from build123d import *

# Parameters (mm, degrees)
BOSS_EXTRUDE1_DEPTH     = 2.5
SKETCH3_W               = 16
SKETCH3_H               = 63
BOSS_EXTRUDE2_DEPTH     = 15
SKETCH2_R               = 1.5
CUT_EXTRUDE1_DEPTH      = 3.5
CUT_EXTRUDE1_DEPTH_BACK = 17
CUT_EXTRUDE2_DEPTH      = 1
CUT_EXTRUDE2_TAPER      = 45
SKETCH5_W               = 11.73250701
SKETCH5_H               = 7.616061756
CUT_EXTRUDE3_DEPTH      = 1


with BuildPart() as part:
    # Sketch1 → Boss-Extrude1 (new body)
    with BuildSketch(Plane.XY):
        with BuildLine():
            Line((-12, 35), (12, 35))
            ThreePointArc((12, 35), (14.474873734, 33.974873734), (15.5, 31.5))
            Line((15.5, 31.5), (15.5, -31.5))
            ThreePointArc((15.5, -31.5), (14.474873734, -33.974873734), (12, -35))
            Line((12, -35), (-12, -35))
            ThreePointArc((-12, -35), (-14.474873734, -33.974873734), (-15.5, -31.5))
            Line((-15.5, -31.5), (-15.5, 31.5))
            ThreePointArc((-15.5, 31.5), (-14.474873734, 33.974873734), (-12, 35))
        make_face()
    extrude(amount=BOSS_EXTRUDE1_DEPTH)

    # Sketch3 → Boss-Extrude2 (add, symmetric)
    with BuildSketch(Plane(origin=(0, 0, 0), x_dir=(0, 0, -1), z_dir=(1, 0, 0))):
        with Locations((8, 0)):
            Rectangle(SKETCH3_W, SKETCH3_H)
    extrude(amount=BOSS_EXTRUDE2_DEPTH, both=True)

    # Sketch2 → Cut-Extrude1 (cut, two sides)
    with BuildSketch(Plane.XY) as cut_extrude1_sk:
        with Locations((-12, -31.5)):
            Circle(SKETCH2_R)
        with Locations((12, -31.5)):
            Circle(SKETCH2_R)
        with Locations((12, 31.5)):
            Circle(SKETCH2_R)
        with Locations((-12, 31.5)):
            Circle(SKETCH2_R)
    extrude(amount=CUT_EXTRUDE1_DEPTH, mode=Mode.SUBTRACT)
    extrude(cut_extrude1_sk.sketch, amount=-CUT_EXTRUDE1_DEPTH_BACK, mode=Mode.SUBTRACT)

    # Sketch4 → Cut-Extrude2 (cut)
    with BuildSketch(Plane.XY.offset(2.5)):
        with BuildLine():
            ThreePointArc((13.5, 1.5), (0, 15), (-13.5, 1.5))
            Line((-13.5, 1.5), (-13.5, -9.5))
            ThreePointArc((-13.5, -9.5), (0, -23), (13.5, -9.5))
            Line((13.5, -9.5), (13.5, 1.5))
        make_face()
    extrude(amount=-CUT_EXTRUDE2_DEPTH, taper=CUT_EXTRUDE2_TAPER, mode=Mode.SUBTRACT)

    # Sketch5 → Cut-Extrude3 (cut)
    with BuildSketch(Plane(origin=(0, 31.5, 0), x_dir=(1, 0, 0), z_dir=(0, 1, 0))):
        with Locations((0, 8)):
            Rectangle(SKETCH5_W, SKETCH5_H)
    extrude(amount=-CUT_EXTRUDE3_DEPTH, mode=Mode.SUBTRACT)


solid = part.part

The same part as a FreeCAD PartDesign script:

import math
import FreeCAD as App
import Part
import Sketcher


def add_polygon(sketch, points):
    """Adds a closed chain of lines whose ends are joined by coincident constraints."""
    first, n = sketch.GeometryCount, len(points)
    for a, b in zip(points, points[1:] + points[:1]):
        sketch.addGeometry(Part.LineSegment(App.Vector(*a, 0), App.Vector(*b, 0)), False)
    for i in range(n):
        sketch.addConstraint(Sketcher.Constraint("Coincident", first + i, 2, first + (i + 1) % n, 1))

doc = App.newDocument("Part")
params = doc.addObject("Spreadsheet::Sheet", "Params")
for row, (alias, value) in enumerate([
    ("sketch1_radius", "3.5 mm"),
    ("sketch1_width", "24 mm"),
    ("sketch1_height", "63 mm"),
    ("pad1_length", "2.5 mm"),
    ("sketch2_width", "63 mm"),
    ("sketch2_height", "16 mm"),
    ("pad2_length", "30 mm"),
    ("sketch3_diameter", "3 mm"),
    ("sketch4_radius", "13.5 mm"),
    ("sketch4_height", "11 mm"),
    ("pocket2_length", "1 mm"),
    ("pocket2_taper", "-45 deg"),
    ("pocket3_length", "1 mm"),
], start=1):
    params.set(f"A{row}", alias)
    params.set(f"B{row}", "=" + value)
    params.setAlias(f"B{row}", alias)

body = doc.addObject("PartDesign::Body", "Body")

sketch1 = body.newObject("Sketcher::SketchObject", "Sketch")
sketch1.AttachmentSupport = (doc.getObject("XY_Plane"), [""])
sketch1.MapMode = "FlatFace"
sketch1.addGeometry([
    Part.LineSegment(App.Vector(12, 35, 0), App.Vector(-12, 35, 0)),
    Part.ArcOfCircle(Part.Circle(App.Vector(-12, 31.5, 0), App.Vector(0, 0, 1), 3.5), math.radians(90), math.radians(180)),
    Part.LineSegment(App.Vector(-15.5, 31.5, 0), App.Vector(-15.5, -31.5, 0)),
    Part.ArcOfCircle(Part.Circle(App.Vector(-12, -31.5, 0), App.Vector(0, 0, 1), 3.5), math.radians(-180), math.radians(-90)),
    Part.LineSegment(App.Vector(-12, -35, 0), App.Vector(12, -35, 0)),
    Part.ArcOfCircle(Part.Circle(App.Vector(12, -31.5, 0), App.Vector(0, 0, 1), 3.5), math.radians(-90), math.radians(0)),
    Part.LineSegment(App.Vector(15.5, -31.5, 0), App.Vector(15.5, 31.5, 0)),
    Part.ArcOfCircle(Part.Circle(App.Vector(12, 31.5, 0), App.Vector(0, 0, 1), 3.5), math.radians(0), math.radians(90)),
], False)
sketch1.addConstraint([
    Sketcher.Constraint("Tangent", 0, 2, 1, 1),
    Sketcher.Constraint("Tangent", 1, 2, 2, 1),
    Sketcher.Constraint("Tangent", 2, 2, 3, 1),
    Sketcher.Constraint("Tangent", 3, 2, 4, 1),
    Sketcher.Constraint("Tangent", 4, 2, 5, 1),
    Sketcher.Constraint("Tangent", 5, 2, 6, 1),
    Sketcher.Constraint("Tangent", 6, 2, 7, 1),
    Sketcher.Constraint("Tangent", 7, 2, 0, 1),
    Sketcher.Constraint("Horizontal", 0),
    Sketcher.Constraint("Vertical", 2),
    Sketcher.Constraint("Horizontal", 4),
    Sketcher.Constraint("Vertical", 6),
    Sketcher.Constraint("Equal", 1, 3),
    Sketcher.Constraint("Equal", 3, 5),
    Sketcher.Constraint("Equal", 5, 7),
    Sketcher.Constraint("Symmetric", 1, 3, 5, 3, -1, 1),
    Sketcher.Constraint("Radius", 1, 3.5),
    Sketcher.Constraint("DistanceX", 0, 2, 0, 1, 24.0),
    Sketcher.Constraint("DistanceY", 2, 2, 2, 1, 63.0),
])
sketch1.setExpression("Constraints[16]", "Params.sketch1_radius")
sketch1.setExpression("Constraints[17]", "Params.sketch1_width")
sketch1.setExpression("Constraints[18]", "Params.sketch1_height")
pad1 = body.newObject("PartDesign::Pad", "Pad")
pad1.Profile = sketch1
pad1.setExpression("Length", "Params.pad1_length")

sketch2 = body.newObject("Sketcher::SketchObject", "Sketch001")
sketch2.AttachmentSupport = (doc.getObject("YZ_Plane"), [""])
sketch2.MapMode = "FlatFace"
add_polygon(sketch2, [(32, 0), (-32, 0), (-32, -16), (32, -16)])
sketch2.addConstraint([
    Sketcher.Constraint("Horizontal", 0),
    Sketcher.Constraint("Vertical", 1),
    Sketcher.Constraint("Horizontal", 2),
    Sketcher.Constraint("Vertical", 3),
    Sketcher.Constraint("Symmetric", 0, 2, 3, 2, -1, 1),
    Sketcher.Constraint("DistanceX", 0, 2, 0, 1, 63.0),
    Sketcher.Constraint("DistanceY", 1, 2, 1, 1, 16.0),
])
sketch2.setExpression("Constraints[9]", "Params.sketch2_width")
sketch2.setExpression("Constraints[10]", "Params.sketch2_height")
pad2 = body.newObject("PartDesign::Pad", "Pad001")
pad2.Profile = sketch2
pad2.setExpression("Length", "Params.pad2_length")
pad2.Midplane = True

sketch3 = body.newObject("Sketcher::SketchObject", "Sketch002")
sketch3.AttachmentSupport = (doc.getObject("XY_Plane"), [""])
sketch3.MapMode = "FlatFace"
sketch3.addGeometry([
    Part.Circle(App.Vector(-12, -31.5, 0), App.Vector(0, 0, 1), 1.5),
    Part.Circle(App.Vector(12, -31.5, 0), App.Vector(0, 0, 1), 1.5),
    Part.Circle(App.Vector(12, 31.5, 0), App.Vector(0, 0, 1), 1.5),
    Part.Circle(App.Vector(-12, 31.5, 0), App.Vector(0, 0, 1), 1.5),
], False)
sketch3.addConstraint([
    Sketcher.Constraint("Equal", 0, 1),
    Sketcher.Constraint("Equal", 1, 2),
    Sketcher.Constraint("Equal", 2, 3),
    Sketcher.Constraint("Symmetric", 0, 3, 2, 3, -1, 1),
    Sketcher.Constraint("Symmetric", 1, 3, 3, 3, -1, 1),
    Sketcher.Constraint("Symmetric", 0, 3, 1, 3, -2),
    Sketcher.Constraint("Diameter", 0, 3.0),
    Sketcher.Constraint("DistanceX", 0, 3, -1, 1, 12.0),
    Sketcher.Constraint("DistanceY", 1, 3, 2, 3, 63.0),
])
sketch3.setExpression("Constraints[6]", "Params.sketch3_diameter")
pocket1 = body.newObject("PartDesign::Pocket", "Pocket")
pocket1.Profile = sketch3
pocket1.Type = "ThroughAll"
pocket1.Midplane = True

sketch4 = body.newObject("Sketcher::SketchObject", "Sketch003")
sketch4.AttachmentSupport = (doc.getObject("XY_Plane"), [""])
sketch4.MapMode = "FlatFace"
sketch4.AttachmentOffset = App.Placement(App.Vector(0, 0, 2.5), App.Rotation())
sketch4.addGeometry([
    Part.ArcOfCircle(Part.Circle(App.Vector(0, 2, 0), App.Vector(0, 0, 1), 14), math.radians(0), math.radians(180)),
    Part.LineSegment(App.Vector(-14, 2, 0), App.Vector(-14, -10, 0)),
    Part.ArcOfCircle(Part.Circle(App.Vector(0, -10, 0), App.Vector(0, 0, 1), 14), math.radians(180), math.radians(360)),
    Part.LineSegment(App.Vector(14, -10, 0), App.Vector(14, 2, 0)),
], False)
sketch4.addConstraint([
    Sketcher.Constraint("Tangent", 0, 2, 1, 1),
    Sketcher.Constraint("Tangent", 1, 2, 2, 1),
    Sketcher.Constraint("Tangent", 2, 2, 3, 1),
    Sketcher.Constraint("Tangent", 3, 2, 0, 1),
    Sketcher.Constraint("Vertical", 1),
    Sketcher.Constraint("Vertical", 3),
    Sketcher.Constraint("PointOnObject", 0, 3, -2),
    Sketcher.Constraint("Radius", 0, 13.5),
    Sketcher.Constraint("DistanceY", 1, 2, 1, 1, 11.0),
    Sketcher.Constraint("DistanceY", -1, 1, 0, 3, 1.5),
])
sketch4.setExpression("Constraints[7]", "Params.sketch4_radius")
sketch4.setExpression("Constraints[8]", "Params.sketch4_height")
pocket2 = body.newObject("PartDesign::Pocket", "Pocket001")
pocket2.Profile = sketch4
pocket2.setExpression("Length", "Params.pocket2_length")
pocket2.setExpression("TaperAngle", "Params.pocket2_taper")

sketch5 = body.newObject("Sketcher::SketchObject", "Sketch004")
sketch5.AttachmentSupport = (doc.getObject("XZ_Plane"), [""])
sketch5.MapMode = "FlatFace"
sketch5.AttachmentOffset = App.Placement(App.Vector(0, 0, -31.5), App.Rotation())
add_polygon(sketch5, [(-6, -12), (-6, -4), (6, -4), (6, -12)])
sketch5.addConstraint([
    Sketcher.Constraint("Vertical", 0),
    Sketcher.Constraint("Horizontal", 1),
    Sketcher.Constraint("Vertical", 2),
    Sketcher.Constraint("Horizontal", 3),
    Sketcher.Constraint("DistanceY", 0, 1, 0, 2, 7.616062),
    Sketcher.Constraint("DistanceX", 1, 1, 1, 2, 11.732507),
    Sketcher.Constraint("DistanceY", 0, 2, -1, 1, 4.191969),
    Sketcher.Constraint("DistanceX", 0, 2, -1, 1, 5.866254),
])
pocket3 = body.newObject("PartDesign::Pocket", "Pocket002")
pocket3.Profile = sketch5
pocket3.setExpression("Length", "Params.pocket3_length")
pocket3.Reversed = True

doc.recompute()
